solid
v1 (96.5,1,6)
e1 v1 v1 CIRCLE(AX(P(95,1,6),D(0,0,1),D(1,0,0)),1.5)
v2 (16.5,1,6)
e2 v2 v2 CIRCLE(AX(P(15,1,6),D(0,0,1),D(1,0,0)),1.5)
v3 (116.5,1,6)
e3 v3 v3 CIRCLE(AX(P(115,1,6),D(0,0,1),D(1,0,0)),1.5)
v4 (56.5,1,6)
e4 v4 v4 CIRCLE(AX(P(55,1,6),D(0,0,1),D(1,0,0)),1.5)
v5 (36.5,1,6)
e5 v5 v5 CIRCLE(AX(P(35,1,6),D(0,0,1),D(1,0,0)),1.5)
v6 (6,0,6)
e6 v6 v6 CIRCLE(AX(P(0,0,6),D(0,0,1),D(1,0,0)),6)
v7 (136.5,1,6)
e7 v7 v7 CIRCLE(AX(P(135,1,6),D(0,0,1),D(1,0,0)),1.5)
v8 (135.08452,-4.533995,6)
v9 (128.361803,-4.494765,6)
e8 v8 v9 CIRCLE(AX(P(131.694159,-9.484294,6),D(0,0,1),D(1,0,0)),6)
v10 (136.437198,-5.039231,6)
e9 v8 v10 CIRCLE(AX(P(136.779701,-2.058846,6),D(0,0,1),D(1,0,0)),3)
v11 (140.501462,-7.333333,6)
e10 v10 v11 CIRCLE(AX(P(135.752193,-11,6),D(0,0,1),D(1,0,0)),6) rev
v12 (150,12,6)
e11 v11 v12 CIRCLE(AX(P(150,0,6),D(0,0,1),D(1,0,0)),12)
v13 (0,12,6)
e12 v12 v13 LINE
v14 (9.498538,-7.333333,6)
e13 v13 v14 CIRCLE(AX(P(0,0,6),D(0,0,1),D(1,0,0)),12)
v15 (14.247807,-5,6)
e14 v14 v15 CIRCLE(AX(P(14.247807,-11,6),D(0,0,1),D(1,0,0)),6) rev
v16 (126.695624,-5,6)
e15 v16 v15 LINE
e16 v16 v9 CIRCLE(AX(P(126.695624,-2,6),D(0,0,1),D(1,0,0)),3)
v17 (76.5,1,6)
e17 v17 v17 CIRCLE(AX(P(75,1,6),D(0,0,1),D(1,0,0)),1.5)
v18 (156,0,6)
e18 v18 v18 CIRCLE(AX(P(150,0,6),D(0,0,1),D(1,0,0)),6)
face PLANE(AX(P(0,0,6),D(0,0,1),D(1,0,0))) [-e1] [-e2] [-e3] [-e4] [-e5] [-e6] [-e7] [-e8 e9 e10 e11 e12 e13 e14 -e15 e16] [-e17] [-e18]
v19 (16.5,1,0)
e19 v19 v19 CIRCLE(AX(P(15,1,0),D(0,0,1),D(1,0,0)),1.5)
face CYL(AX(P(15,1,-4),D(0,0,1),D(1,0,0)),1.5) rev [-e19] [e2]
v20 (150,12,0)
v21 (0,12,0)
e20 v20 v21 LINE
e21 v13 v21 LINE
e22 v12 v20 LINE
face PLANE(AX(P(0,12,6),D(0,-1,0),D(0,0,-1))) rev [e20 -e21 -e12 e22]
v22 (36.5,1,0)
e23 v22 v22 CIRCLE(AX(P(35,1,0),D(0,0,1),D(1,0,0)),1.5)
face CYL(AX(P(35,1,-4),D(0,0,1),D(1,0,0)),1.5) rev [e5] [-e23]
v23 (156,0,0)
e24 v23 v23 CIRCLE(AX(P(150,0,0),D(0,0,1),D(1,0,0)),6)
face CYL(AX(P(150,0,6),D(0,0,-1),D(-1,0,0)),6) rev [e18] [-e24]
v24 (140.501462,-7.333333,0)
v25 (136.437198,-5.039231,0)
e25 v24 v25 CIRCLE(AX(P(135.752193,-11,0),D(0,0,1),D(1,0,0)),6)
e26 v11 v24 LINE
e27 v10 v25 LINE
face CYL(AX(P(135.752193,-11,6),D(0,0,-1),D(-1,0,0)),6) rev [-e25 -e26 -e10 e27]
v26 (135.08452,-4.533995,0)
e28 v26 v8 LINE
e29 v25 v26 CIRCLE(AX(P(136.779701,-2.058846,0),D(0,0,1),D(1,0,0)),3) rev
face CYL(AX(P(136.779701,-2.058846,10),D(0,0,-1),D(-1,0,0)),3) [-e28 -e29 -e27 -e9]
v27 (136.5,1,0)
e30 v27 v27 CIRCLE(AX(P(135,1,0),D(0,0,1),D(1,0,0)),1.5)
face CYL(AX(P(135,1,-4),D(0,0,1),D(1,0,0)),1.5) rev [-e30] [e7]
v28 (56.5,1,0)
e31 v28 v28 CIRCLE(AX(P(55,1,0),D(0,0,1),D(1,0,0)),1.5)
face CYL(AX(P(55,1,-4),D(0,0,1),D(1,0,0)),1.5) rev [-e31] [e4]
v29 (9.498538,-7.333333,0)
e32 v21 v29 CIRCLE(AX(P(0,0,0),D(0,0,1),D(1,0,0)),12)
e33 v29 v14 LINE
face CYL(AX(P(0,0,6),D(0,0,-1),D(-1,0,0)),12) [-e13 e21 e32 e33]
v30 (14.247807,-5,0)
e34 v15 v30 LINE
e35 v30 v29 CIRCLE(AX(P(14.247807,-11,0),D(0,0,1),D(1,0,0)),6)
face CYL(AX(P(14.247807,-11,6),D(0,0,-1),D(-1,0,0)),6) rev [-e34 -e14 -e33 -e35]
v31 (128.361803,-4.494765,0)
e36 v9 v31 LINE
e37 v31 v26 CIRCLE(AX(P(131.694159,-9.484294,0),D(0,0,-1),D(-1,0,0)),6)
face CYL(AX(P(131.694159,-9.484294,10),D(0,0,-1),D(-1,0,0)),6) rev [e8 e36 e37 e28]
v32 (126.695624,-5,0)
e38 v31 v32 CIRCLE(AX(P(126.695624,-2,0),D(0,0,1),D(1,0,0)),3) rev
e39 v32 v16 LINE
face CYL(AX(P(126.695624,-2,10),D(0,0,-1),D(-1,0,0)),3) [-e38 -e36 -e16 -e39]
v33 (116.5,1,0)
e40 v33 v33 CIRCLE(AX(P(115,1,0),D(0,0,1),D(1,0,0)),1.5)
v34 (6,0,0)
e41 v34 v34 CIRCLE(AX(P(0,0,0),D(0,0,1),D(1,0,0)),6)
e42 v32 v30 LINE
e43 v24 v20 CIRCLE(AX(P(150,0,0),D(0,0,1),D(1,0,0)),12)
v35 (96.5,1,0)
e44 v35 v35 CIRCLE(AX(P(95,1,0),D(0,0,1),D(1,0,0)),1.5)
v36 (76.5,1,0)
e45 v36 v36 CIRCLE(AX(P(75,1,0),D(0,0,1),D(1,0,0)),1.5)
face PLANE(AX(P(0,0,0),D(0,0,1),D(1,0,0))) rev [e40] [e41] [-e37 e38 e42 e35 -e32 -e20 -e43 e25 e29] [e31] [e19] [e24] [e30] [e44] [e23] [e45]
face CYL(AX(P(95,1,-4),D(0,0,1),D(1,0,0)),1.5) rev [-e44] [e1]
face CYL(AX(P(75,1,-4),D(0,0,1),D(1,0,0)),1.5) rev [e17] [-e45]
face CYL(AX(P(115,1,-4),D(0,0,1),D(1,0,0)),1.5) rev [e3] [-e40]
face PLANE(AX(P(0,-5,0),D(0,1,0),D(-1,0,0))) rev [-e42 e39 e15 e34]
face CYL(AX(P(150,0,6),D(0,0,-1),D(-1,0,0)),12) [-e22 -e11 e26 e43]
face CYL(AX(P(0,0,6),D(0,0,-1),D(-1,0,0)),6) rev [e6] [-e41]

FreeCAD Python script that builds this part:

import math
import FreeCAD as App
import Part
import Sketcher

V = App.Vector
Q = App.Units.Quantity


def edges_at(feature, points):
    """Names of the edges that pass closest to the given points."""
    edges = feature.Shape.Edges
    near = lambda p: min(range(len(edges)), key=lambda i: edges[i].distToShape(Part.Vertex(*p))[0])
    return sorted({f"Edge{near(p) + 1}" for p in points})

doc = App.newDocument("Part")
body = doc.addObject("PartDesign::Body", "Body")

# Sketch on XY plane
sketch1 = doc.addObject("Sketcher::SketchObject", "Sketch")
body.addObject(sketch1)
sketch1.AttachmentSupport = (doc.XY_Plane, [""])
sketch1.MapMode = "FlatFace"
sketch1.addGeometry([
    Part.LineSegment(V(150, 12, 0), V(0, 12, 0)),  # 0
    Part.ArcOfCircle(Part.Circle(V(0, 0, 0), V(0, 0, 1), 12), math.radians(90), math.radians(270)),  # 1
    Part.LineSegment(V(0, -12, 0), V(150, -12, 0)),  # 2
    Part.ArcOfCircle(Part.Circle(V(150, 0, 0), V(0, 0, 1), 12), math.radians(-90), math.radians(90)),  # 3
    Part.Circle(V(150, 0, 0), V(0, 0, 1), 6),  # 4
    Part.Circle(V(0, 0, 0), V(0, 0, 1), 6),  # 5
], False)
sketch1.addConstraint([
    Sketcher.Constraint("Tangent", 0, 2, 1, 1),
    Sketcher.Constraint("Tangent", 1, 2, 2, 1),
    Sketcher.Constraint("Tangent", 2, 2, 3, 1),
    Sketcher.Constraint("Tangent", 3, 2, 0, 1),
    Sketcher.Constraint("Horizontal", 0),
    Sketcher.Constraint("Horizontal", 2),
    Sketcher.Constraint("Coincident", 1, 3, -1, 1),
    Sketcher.Constraint("Coincident", 5, 3, -1, 1),
    Sketcher.Constraint("Coincident", 4, 3, 3, 3),
    Sketcher.Constraint("Equal", 4, 5),
    Sketcher.Constraint("Diameter", 4, Q("12 mm")),
    Sketcher.Constraint("Radius", 1, Q("12 mm")),
    Sketcher.Constraint("DistanceX", 0, 2, 0, 1, Q("150 mm")),
])
pad1 = doc.addObject("PartDesign::Pad", "Pad")
body.addObject(pad1)
pad1.Profile = sketch1
pad1.Length = 6

# Sketch on XY plane
sketch2 = doc.addObject("Sketcher::SketchObject", "Sketch001")
body.addObject(sketch2)
sketch2.AttachmentSupport = (doc.XY_Plane, [""])
sketch2.MapMode = "FlatFace"
sketch2.addGeometry([
    Part.ArcOfCircle(Part.Circle(V(0, 0, 0), V(0, 0, 1), 12), math.radians(-90), math.radians(-25)),
    Part.LineSegment(V(0, -12, 0), V(150, -12, 0)),
    Part.ArcOfCircle(Part.Circle(V(150, 0, 0), V(0, 0, 1), 12), math.radians(-155), math.radians(-90)),
    Part.LineSegment(V(139, -5, 0), V(11, -5, 0)),
], False)
sketch2.addConstraint([
    Sketcher.Constraint("Tangent", 0, 1, 1, 1),
    Sketcher.Constraint("Tangent", 1, 2, 2, 2),
    Sketcher.Constraint("Coincident", 2, 1, 3, 1),
    Sketcher.Constraint("Coincident", 3, 2, 0, 2),
    Sketcher.Constraint("Horizontal", 1),
    Sketcher.Constraint("Horizontal", 3),
    Sketcher.Constraint("Coincident", 0, 3, -1, 1),
    Sketcher.Constraint("Equal", 0, 2),
    Sketcher.Constraint("Radius", 0, Q("12 mm")),
    Sketcher.Constraint("DistanceX", 1, 1, 1, 2, Q("150 mm")),
    Sketcher.Constraint("DistanceY", 2, 1, -1, 1, Q("5 mm")),
])
pocket1 = doc.addObject("PartDesign::Pocket", "Pocket")
body.addObject(pocket1)
pocket1.Profile = sketch2
pocket1.Length = 6
pocket1.Reversed = True
doc.recompute()

fillet = doc.addObject("PartDesign::Fillet", "Fillet")
body.addObject(fillet)
fillet.Base = (pocket1, edges_at(pocket1, [(139.091, -5, 3), (10.909, -5, 3)]))
fillet.Radius = 6

# Sketch on XY plane
sketch3 = doc.addObject("Sketcher::SketchObject", "Sketch002")
body.addObject(sketch3)
sketch3.AttachmentSupport = (doc.XY_Plane, [""])
sketch3.MapMode = "FlatFace"
sketch3.AttachmentOffset = App.Placement(V(0, 0, 6), App.Rotation())
sketch3.addGeometry([
    Part.Circle(V(15, 1, 0), V(0, 0, 1), 1.5),  # 0
    Part.Circle(V(35, 1, 0), V(0, 0, 1), 1.5),  # 1
    Part.Circle(V(55, 1, 0), V(0, 0, 1), 1.5),  # 2
    Part.Circle(V(75, 1, 0), V(0, 0, 1), 1.5),  # 3
    Part.Circle(V(95, 1, 0), V(0, 0, 1), 1.5),  # 4
    Part.Circle(V(115, 1, 0), V(0, 0, 1), 1.5),  # 5
    Part.Circle(V(135, 1, 0), V(0, 0, 1), 1.5),  # 6
], False)
sketch3.addConstraint([
    Sketcher.Constraint("Equal", 0, 1),
    Sketcher.Constraint("Equal", 1, 2),
    Sketcher.Constraint("Equal", 2, 3),
    Sketcher.Constraint("Equal", 3, 4),
    Sketcher.Constraint("Equal", 4, 5),
    Sketcher.Constraint("Equal", 5, 6),
    Sketcher.Constraint("Horizontal", 0, 3, 1, 3),
    Sketcher.Constraint("Horizontal", 1, 3, 2, 3),
    Sketcher.Constraint("Horizontal", 2, 3, 3, 3),
    Sketcher.Constraint("Horizontal", 3, 3, 4, 3),
    Sketcher.Constraint("Horizontal", 4, 3, 5, 3),
    Sketcher.Constraint("Horizontal", 5, 3, 6, 3),
    Sketcher.Constraint("Diameter", 0, Q("3 mm")),
    Sketcher.Constraint("DistanceX", -1, 1, 0, 3, Q("15 mm")),
    Sketcher.Constraint("DistanceY", -1, 1, 0, 3, Q("1 mm")),
    Sketcher.Constraint("DistanceX", -1, 1, 1, 3, Q("35 mm")),
    Sketcher.Constraint("DistanceX", -1, 1, 2, 3, Q("55 mm")),
    Sketcher.Constraint("DistanceX", -1, 1, 3, 3, Q("75 mm")),
    Sketcher.Constraint("DistanceX", -1, 1, 4, 3, Q("95 mm")),
    Sketcher.Constraint("DistanceX", -1, 1, 5, 3, Q("115 mm")),
    Sketcher.Constraint("DistanceX", -1, 1, 6, 3, Q("135 mm")),
])
pocket2 = doc.addObject("PartDesign::Pocket", "Pocket001")
body.addObject(pocket2)
pocket2.Profile = sketch3
pocket2.Length = 10

# Sketch on XY plane
sketch4 = doc.addObject("Sketcher::SketchObject", "Sketch003")
body.addObject(sketch4)
sketch4.AttachmentSupport = (doc.XY_Plane, [""])
sketch4.MapMode = "FlatFace"
sketch4.addGeometry(Part.Circle(V(132, -9, 0), V(0, 0, 1), 6), False)
sketch4.addConstraint([
    Sketcher.Constraint("Diameter", 0, Q("12 mm")),
    Sketcher.Constraint("DistanceX", -1, 1, 0, 3, Q("131.694159 mm")),
    Sketcher.Constraint("DistanceY", 0, 3, -1, 1, Q("9.484294 mm")),
])
pocket3 = doc.addObject("PartDesign::Pocket", "Pocket002")
body.addObject(pocket3)
pocket3.Profile = sketch4
pocket3.Length = 10
pocket3.Reversed = True
doc.recompute()

fillet2 = doc.addObject("PartDesign::Fillet", "Fillet001")
body.addObject(fillet2)
fillet2.Base = (pocket3, edges_at(pocket3, [(127.708, -5, 3), (135.681, -5, 3)]))
fillet2.Radius = 3

doc.recompute()
